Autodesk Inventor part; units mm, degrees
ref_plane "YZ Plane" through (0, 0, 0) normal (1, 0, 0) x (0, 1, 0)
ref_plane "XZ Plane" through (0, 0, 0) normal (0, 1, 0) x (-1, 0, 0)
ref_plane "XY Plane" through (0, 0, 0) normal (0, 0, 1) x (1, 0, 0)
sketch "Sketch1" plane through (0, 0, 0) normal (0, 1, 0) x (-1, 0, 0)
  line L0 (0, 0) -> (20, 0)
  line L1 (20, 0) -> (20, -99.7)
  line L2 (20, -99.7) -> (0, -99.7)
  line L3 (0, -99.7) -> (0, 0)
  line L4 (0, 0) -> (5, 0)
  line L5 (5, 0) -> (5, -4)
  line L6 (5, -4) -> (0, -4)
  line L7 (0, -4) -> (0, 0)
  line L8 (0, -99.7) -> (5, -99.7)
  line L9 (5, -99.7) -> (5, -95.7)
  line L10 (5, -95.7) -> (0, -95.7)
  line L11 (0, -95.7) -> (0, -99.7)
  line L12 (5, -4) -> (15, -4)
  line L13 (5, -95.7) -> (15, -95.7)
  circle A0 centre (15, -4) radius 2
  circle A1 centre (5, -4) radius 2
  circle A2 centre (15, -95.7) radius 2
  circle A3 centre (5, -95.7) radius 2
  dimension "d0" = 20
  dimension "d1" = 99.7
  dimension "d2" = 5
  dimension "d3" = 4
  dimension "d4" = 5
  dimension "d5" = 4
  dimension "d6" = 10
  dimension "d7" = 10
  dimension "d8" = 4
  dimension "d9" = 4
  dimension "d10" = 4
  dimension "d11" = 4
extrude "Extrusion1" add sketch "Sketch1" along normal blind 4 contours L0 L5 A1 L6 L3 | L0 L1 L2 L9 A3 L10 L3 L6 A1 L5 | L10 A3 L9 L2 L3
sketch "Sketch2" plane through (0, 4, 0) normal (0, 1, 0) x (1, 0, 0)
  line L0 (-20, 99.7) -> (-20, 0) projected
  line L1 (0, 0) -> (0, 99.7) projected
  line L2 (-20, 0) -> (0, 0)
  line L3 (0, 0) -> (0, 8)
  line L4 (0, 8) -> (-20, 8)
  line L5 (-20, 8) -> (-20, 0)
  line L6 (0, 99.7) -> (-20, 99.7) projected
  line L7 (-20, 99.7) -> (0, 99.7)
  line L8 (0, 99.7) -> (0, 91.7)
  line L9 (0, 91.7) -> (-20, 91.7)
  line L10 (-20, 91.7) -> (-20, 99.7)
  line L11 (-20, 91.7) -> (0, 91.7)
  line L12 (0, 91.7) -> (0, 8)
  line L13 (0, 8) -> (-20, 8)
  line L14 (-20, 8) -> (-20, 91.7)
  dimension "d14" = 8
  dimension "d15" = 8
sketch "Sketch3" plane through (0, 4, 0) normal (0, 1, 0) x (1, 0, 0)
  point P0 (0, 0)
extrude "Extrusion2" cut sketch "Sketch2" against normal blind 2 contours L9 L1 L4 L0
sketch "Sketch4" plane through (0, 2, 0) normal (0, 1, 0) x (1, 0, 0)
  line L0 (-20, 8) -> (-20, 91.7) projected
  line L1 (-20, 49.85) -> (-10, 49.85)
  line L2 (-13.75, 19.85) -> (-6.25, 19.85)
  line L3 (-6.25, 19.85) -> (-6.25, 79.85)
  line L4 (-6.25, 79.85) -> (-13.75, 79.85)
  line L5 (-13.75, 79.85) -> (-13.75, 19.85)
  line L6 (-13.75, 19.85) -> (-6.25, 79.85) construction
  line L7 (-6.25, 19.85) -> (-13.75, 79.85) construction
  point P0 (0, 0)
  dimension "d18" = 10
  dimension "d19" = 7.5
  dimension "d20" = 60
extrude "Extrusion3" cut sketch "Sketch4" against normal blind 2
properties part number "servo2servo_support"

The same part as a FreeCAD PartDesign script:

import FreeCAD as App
import Part
import Sketcher

V = App.Vector
Q = App.Units.Quantity

doc = App.newDocument("Part")
params = doc.addObject("Spreadsheet::Sheet", "Params")
for row, (alias, value) in enumerate([
    ("sketch1_diameter", "4 mm"),
    ("sketch1_width", "20 mm"),
    ("sketch1_height", "99.7 mm"),
    ("pad1_length", "4 mm"),
    ("sketch2_width", "20 mm"),
    ("sketch2_height", "83.7 mm"),
    ("pocket1_length", "2 mm"),
    ("sketch3_height", "60 mm"),
    ("sketch3_width", "7.5 mm"),
    ("pocket2_length", "2 mm"),
], start=1):
    params.set(f"A{row}", alias)
    params.set(f"B{row}", "=" + value)
    params.setAlias(f"B{row}", alias)

body = doc.addObject("PartDesign::Body", "Body")

sketch1 = body.newObject("Sketcher::SketchObject", "Sketch")
sketch1.AttachmentSupport = (doc.getObject("XZ_Plane"), [""])
sketch1.MapMode = "FlatFace"
sketch1.addGeometry(Part.LineSegment(V(0, 0, 0), V(0, -99.7, 0)), False)
sketch1.addGeometry(Part.LineSegment(V(0, -99.7, 0), V(-20, -99.7, 0)), False)
sketch1.addGeometry(Part.LineSegment(V(-20, -99.7, 0), V(-20, 0, 0)), False)
sketch1.addGeometry(Part.LineSegment(V(-20, 0, 0), V(0, 0, 0)), False)
sketch1.addGeometry(Part.Circle(V(-5, -4, 0), V(0, 0, 1), 2), False)
sketch1.addGeometry(Part.Circle(V(-5, -95.7, 0), V(0, 0, 1), 2), False)
sketch1.addGeometry(Part.Circle(V(-15, -95.7, 0), V(0, 0, 1), 2), False)
sketch1.addGeometry(Part.Circle(V(-15, -4, 0), V(0, 0, 1), 2), False)
sketch1.addConstraint(Sketcher.Constraint("Coincident", 0, 2, 1, 1))
sketch1.addConstraint(Sketcher.Constraint("Coincident", 1, 2, 2, 1))
sketch1.addConstraint(Sketcher.Constraint("Coincident", 2, 2, 3, 1))
sketch1.addConstraint(Sketcher.Constraint("Coincident", 3, 2, 0, 1))
sketch1.addConstraint(Sketcher.Constraint("Vertical", 0))
sketch1.addConstraint(Sketcher.Constraint("Horizontal", 1))
sketch1.addConstraint(Sketcher.Constraint("Vertical", 2))
sketch1.addConstraint(Sketcher.Constraint("Horizontal", 3))
sketch1.addConstraint(Sketcher.Constraint("Coincident", 3, 2, -1, 1))
sketch1.addConstraint(Sketcher.Constraint("Equal", 4, 5))
sketch1.addConstraint(Sketcher.Constraint("Equal", 5, 6))
sketch1.addConstraint(Sketcher.Constraint("Equal", 6, 7))
sketch1.addConstraint(Sketcher.Constraint("Horizontal", 5, 3, 6, 3))
sketch1.addConstraint(Sketcher.Constraint("Horizontal", 4, 3, 7, 3))
sketch1.addConstraint(Sketcher.Constraint("Vertical", 4, 3, 5, 3))
sketch1.addConstraint(Sketcher.Constraint("Vertical", 6, 3, 7, 3))
sketch1.addConstraint(Sketcher.Constraint("Diameter", 4, Q("4 mm")))
sketch1.addConstraint(Sketcher.Constraint("DistanceX", 1, 2, 1, 1, Q("20 mm")))
sketch1.addConstraint(Sketcher.Constraint("DistanceY", 0, 2, 0, 1, Q("99.7 mm")))
sketch1.addConstraint(Sketcher.Constraint("DistanceX", 4, 3, -1, 1, Q("5 mm")))
sketch1.addConstraint(Sketcher.Constraint("DistanceY", 4, 3, -1, 1, Q("4 mm")))
sketch1.addConstraint(Sketcher.Constraint("DistanceX", 6, 3, 5, 3, Q("10 mm")))
sketch1.addConstraint(Sketcher.Constraint("DistanceY", 0, 2, 5, 3, Q("4 mm")))
sketch1.setExpression("Constraints[16]", "Params.sketch1_diameter")
sketch1.setExpression("Constraints[17]", "Params.sketch1_width")
sketch1.setExpression("Constraints[18]", "Params.sketch1_height")
pad1 = body.newObject("PartDesign::Pad", "Pad")
pad1.Profile = sketch1
pad1.setExpression("Length", "Params.pad1_length")
pad1.Reversed = True

sketch2 = body.newObject("Sketcher::SketchObject", "Sketch001")
sketch2.AttachmentSupport = (doc.getObject("XZ_Plane"), [""])
sketch2.MapMode = "FlatFace"
sketch2.AttachmentOffset = App.Placement(V(0, 0, -4), App.Rotation())
sketch2.addGeometry(Part.LineSegment(V(0, -92, 0), V(-20, -92, 0)), False)
sketch2.addGeometry(Part.LineSegment(V(-20, -92, 0), V(-20, -8, 0)), False)
sketch2.addGeometry(Part.LineSegment(V(-20, -8, 0), V(0, -8, 0)), False)
sketch2.addGeometry(Part.LineSegment(V(0, -8, 0), V(0, -92, 0)), False)
sketch2.addConstraint(Sketcher.Constraint("Coincident", 0, 2, 1, 1))
sketch2.addConstraint(Sketcher.Constraint("Coincident", 1, 2, 2, 1))
sketch2.addConstraint(Sketcher.Constraint("Coincident", 2, 2, 3, 1))
sketch2.addConstraint(Sketcher.Constraint("Coincident", 3, 2, 0, 1))
sketch2.addConstraint(Sketcher.Constraint("Horizontal", 0))
sketch2.addConstraint(Sketcher.Constraint("Vertical", 1))
sketch2.addConstraint(Sketcher.Constraint("Horizontal", 2))
sketch2.addConstraint(Sketcher.Constraint("Vertical", 3))
sketch2.addConstraint(Sketcher.Constraint("PointOnObject", 2, 2, -2))
sketch2.addConstraint(Sketcher.Constraint("DistanceY", 1, 2, -1, 1, Q("8 mm")))
sketch2.addConstraint(Sketcher.Constraint("DistanceX", 0, 2, 0, 1, Q("20 mm")))
sketch2.addConstraint(Sketcher.Constraint("DistanceY", 1, 1, 1, 2, Q("83.7 mm")))
sketch2.setExpression("Constraints[10]", "Params.sketch2_width")
sketch2.setExpression("Constraints[11]", "Params.sketch2_height")
pocket1 = body.newObject("PartDesign::Pocket", "Pocket")
pocket1.Profile = sketch2
pocket1.setExpression("Length", "Params.pocket1_length")
pocket1.Reversed = True

sketch3 = body.newObject("Sketcher::SketchObject", "Sketch002")
sketch3.AttachmentSupport = (doc.getObject("XZ_Plane"), [""])
sketch3.MapMode = "FlatFace"
sketch3.AttachmentOffset = App.Placement(V(0, 0, -2), App.Rotation())
sketch3.addGeometry(Part.LineSegment(V(-14, -80, 0), V(-14, -20, 0)), False)
sketch3.addGeometry(Part.LineSegment(V(-14, -20, 0), V(-6, -20, 0)), False)
sketch3.addGeometry(Part.LineSegment(V(-6, -20, 0), V(-6, -80, 0)), False)
sketch3.addGeometry(Part.LineSegment(V(-6, -80, 0), V(-14, -80, 0)), False)
sketch3.addConstraint(Sketcher.Constraint("Coincident", 0, 2, 1, 1))
sketch3.addConstraint(Sketcher.Constraint("Coincident", 1, 2, 2, 1))
sketch3.addConstraint(Sketcher.Constraint("Coincident", 2, 2, 3, 1))
sketch3.addConstraint(Sketcher.Constraint("Coincident", 3, 2, 0, 1))
sketch3.addConstraint(Sketcher.Constraint("Vertical", 0))
sketch3.addConstraint(Sketcher.Constraint("Horizontal", 1))
sketch3.addConstraint(Sketcher.Constraint("Vertical", 2))
sketch3.addConstraint(Sketcher.Constraint("Horizontal", 3))
sketch3.addConstraint(Sketcher.Constraint("DistanceY", 0, 1, 0, 2, Q("60 mm")))
sketch3.addConstraint(Sketcher.Constraint("DistanceX", 1, 1, 1, 2, Q("7.5 mm")))
sketch3.addConstraint(Sketcher.Constraint("DistanceX", 0, 2, -1, 1, Q("13.75 mm")))
sketch3.addConstraint(Sketcher.Constraint("DistanceY", 0, 2, -1, 1, Q("19.85 mm")))
sketch3.setExpression("Constraints[8]", "Params.sketch3_height")
sketch3.setExpression("Constraints[9]", "Params.sketch3_width")
pocket2 = body.newObject("PartDesign::Pocket", "Pocket001")
pocket2.Profile = sketch3
pocket2.setExpression("Length", "Params.pocket2_length")
pocket2.Reversed = True

doc.recompute()
